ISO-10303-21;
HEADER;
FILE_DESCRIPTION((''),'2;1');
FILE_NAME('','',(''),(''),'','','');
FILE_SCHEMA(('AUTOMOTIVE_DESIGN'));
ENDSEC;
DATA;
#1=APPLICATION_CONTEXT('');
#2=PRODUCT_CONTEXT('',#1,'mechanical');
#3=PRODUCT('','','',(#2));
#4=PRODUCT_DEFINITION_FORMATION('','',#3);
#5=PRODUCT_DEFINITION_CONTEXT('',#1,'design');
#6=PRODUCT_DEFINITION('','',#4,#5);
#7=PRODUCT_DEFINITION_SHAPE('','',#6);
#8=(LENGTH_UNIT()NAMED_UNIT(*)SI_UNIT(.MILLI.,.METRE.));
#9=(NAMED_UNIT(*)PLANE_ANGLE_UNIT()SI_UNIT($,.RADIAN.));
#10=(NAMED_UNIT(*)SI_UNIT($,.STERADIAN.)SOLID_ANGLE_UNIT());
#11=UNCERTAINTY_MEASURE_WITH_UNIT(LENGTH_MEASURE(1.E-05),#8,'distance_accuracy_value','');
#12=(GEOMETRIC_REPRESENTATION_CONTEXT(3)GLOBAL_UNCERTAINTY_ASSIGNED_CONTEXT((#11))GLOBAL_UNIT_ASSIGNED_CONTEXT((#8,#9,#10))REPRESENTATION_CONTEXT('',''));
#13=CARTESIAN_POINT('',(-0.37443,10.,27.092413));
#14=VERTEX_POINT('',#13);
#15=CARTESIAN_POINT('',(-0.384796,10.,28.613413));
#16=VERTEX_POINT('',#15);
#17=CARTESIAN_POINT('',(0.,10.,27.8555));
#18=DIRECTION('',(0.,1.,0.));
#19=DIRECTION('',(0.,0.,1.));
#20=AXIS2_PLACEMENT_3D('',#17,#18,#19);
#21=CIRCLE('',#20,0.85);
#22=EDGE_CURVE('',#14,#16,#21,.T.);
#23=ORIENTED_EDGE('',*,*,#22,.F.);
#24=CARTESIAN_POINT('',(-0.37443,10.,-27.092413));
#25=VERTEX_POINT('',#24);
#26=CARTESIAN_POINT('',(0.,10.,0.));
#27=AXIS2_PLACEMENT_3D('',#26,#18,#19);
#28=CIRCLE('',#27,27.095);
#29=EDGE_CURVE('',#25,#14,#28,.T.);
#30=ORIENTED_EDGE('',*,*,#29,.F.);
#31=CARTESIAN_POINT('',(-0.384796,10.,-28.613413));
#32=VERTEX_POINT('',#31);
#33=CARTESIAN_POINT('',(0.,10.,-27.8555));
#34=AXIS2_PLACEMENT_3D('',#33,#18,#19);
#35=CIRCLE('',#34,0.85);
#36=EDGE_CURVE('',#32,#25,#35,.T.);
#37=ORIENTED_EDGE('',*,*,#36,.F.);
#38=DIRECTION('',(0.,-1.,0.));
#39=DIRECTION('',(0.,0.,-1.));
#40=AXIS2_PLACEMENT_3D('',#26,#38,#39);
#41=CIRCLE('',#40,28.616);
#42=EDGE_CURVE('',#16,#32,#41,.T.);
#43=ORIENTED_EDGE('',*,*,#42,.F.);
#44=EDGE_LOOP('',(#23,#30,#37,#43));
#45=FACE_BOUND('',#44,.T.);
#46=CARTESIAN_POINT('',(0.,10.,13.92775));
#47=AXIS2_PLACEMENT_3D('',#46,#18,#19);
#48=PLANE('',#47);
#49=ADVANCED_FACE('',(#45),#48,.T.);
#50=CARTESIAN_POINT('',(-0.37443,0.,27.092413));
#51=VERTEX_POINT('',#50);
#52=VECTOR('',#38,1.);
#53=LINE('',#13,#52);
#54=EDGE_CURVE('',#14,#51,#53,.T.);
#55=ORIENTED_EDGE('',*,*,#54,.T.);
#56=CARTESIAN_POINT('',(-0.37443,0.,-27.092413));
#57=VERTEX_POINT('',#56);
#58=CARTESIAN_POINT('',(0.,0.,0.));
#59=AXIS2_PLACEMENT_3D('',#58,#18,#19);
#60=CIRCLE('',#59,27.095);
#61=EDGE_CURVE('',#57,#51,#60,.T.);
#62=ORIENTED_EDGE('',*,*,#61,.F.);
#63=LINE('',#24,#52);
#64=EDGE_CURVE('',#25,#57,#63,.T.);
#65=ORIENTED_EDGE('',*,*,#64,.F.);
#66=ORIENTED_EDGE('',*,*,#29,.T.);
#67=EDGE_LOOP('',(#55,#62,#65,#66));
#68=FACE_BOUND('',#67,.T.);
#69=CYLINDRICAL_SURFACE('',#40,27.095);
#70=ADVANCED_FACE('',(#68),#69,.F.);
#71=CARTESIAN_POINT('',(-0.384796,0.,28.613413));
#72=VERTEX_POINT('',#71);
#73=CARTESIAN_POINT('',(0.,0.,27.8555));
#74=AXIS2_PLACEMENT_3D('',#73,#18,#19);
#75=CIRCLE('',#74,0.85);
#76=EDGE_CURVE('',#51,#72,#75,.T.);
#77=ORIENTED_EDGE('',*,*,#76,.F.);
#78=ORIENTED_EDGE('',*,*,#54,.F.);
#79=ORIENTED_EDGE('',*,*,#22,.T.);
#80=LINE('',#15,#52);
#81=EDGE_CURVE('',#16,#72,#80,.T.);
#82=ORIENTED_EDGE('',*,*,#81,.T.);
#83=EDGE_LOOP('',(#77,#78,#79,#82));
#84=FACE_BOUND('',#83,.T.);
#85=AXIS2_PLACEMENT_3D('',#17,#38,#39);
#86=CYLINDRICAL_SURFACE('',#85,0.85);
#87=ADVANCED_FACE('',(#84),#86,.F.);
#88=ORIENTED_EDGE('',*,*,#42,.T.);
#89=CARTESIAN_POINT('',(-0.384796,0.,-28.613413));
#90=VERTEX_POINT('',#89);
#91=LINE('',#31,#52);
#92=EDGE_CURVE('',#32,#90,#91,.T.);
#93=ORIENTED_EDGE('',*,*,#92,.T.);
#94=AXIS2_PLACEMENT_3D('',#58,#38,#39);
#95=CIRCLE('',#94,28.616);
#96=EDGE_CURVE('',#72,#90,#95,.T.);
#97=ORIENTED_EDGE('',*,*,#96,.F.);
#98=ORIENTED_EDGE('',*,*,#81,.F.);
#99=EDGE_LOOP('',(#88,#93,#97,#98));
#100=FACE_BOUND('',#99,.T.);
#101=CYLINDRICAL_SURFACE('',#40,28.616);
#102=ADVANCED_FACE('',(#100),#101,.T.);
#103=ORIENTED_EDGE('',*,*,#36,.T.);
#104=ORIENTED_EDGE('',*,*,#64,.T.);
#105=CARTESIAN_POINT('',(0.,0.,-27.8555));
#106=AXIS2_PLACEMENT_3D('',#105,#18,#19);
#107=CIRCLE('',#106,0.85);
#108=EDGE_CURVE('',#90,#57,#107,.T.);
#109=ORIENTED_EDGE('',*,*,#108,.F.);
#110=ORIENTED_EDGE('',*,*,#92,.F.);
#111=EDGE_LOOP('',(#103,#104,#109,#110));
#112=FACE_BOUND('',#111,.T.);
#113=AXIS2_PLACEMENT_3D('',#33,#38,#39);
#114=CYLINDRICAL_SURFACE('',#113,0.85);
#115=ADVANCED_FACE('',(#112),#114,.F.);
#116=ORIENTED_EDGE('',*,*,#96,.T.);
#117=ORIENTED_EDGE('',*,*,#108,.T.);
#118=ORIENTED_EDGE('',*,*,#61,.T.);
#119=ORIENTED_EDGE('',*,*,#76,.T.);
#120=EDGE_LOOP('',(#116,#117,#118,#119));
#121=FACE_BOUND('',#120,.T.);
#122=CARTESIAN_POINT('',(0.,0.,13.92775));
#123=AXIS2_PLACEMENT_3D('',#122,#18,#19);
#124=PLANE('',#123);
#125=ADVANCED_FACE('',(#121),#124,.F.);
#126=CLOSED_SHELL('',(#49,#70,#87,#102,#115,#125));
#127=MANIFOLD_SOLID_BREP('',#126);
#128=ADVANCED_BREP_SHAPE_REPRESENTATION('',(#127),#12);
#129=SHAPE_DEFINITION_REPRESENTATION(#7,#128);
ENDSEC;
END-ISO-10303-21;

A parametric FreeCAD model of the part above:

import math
import FreeCAD as App
import Part
import Sketcher
Q = App.Units.Quantity

doc = App.newDocument("Part")
body = doc.addObject("PartDesign::Body", "Body")

# Sketch on XZ plane
sketch1 = body.newObject("Sketcher::SketchObject", "Sketch")
sketch1.AttachmentSupport = (doc.getObject("XZ_Plane"), [""])
sketch1.MapMode = "FlatFace"
sketch1.addGeometry(Part.ArcOfCircle(Part.Circle(App.Vector(0, 27.8555, 0), App.Vector(0, 0, 1), 0.85), math.radians(116.917155), math.radians(243.863839)), False)
sketch1.addGeometry(Part.ArcOfCircle(Part.Circle(App.Vector(0, 0, 0), App.Vector(0, 0, 1), 27.095), math.radians(90.791804), math.radians(269.208196)), False)
sketch1.addGeometry(Part.ArcOfCircle(Part.Circle(App.Vector(0, -27.8555, 0), App.Vector(0, 0, 1), 0.85), math.radians(116.136161), math.radians(243.082845)), False)
sketch1.addGeometry(Part.ArcOfCircle(Part.Circle(App.Vector(0, 0, 0), App.Vector(0, 0, 1), 28.616), math.radians(90.770474), math.radians(269.229526)), False)
sketch1.addConstraint(Sketcher.Constraint("Coincident", 0, 2, 1, 1))
sketch1.addConstraint(Sketcher.Constraint("Coincident", 1, 2, 2, 1))
sketch1.addConstraint(Sketcher.Constraint("Coincident", 2, 2, 3, 2))
sketch1.addConstraint(Sketcher.Constraint("Coincident", 3, 1, 0, 1))
sketch1.addConstraint(Sketcher.Constraint("Coincident", 1, 3, -1, 1))
sketch1.addConstraint(Sketcher.Constraint("Coincident", 3, 3, -1, 1))
sketch1.addConstraint(Sketcher.Constraint("Equal", 0, 2))
sketch1.addConstraint(Sketcher.Constraint("Symmetric", 0, 3, 2, 3, -1, 1))
sketch1.addConstraint(Sketcher.Constraint("PointOnObject", 0, 3, -2))
sketch1.addConstraint(Sketcher.Constraint("Radius", 0, Q("0.85 mm")))
sketch1.addConstraint(Sketcher.Constraint("Radius", 1, Q("27.095 mm")))
sketch1.addConstraint(Sketcher.Constraint("Radius", 3, Q("28.616 mm")))
sketch1.addConstraint(Sketcher.Constraint("DistanceY", 2, 3, 0, 3, Q("55.711 mm")))
pad1 = body.newObject("PartDesign::Pad", "Pad")
pad1.Profile = sketch1
pad1.Length = 10
pad1.Reversed = True

doc.recompute()
